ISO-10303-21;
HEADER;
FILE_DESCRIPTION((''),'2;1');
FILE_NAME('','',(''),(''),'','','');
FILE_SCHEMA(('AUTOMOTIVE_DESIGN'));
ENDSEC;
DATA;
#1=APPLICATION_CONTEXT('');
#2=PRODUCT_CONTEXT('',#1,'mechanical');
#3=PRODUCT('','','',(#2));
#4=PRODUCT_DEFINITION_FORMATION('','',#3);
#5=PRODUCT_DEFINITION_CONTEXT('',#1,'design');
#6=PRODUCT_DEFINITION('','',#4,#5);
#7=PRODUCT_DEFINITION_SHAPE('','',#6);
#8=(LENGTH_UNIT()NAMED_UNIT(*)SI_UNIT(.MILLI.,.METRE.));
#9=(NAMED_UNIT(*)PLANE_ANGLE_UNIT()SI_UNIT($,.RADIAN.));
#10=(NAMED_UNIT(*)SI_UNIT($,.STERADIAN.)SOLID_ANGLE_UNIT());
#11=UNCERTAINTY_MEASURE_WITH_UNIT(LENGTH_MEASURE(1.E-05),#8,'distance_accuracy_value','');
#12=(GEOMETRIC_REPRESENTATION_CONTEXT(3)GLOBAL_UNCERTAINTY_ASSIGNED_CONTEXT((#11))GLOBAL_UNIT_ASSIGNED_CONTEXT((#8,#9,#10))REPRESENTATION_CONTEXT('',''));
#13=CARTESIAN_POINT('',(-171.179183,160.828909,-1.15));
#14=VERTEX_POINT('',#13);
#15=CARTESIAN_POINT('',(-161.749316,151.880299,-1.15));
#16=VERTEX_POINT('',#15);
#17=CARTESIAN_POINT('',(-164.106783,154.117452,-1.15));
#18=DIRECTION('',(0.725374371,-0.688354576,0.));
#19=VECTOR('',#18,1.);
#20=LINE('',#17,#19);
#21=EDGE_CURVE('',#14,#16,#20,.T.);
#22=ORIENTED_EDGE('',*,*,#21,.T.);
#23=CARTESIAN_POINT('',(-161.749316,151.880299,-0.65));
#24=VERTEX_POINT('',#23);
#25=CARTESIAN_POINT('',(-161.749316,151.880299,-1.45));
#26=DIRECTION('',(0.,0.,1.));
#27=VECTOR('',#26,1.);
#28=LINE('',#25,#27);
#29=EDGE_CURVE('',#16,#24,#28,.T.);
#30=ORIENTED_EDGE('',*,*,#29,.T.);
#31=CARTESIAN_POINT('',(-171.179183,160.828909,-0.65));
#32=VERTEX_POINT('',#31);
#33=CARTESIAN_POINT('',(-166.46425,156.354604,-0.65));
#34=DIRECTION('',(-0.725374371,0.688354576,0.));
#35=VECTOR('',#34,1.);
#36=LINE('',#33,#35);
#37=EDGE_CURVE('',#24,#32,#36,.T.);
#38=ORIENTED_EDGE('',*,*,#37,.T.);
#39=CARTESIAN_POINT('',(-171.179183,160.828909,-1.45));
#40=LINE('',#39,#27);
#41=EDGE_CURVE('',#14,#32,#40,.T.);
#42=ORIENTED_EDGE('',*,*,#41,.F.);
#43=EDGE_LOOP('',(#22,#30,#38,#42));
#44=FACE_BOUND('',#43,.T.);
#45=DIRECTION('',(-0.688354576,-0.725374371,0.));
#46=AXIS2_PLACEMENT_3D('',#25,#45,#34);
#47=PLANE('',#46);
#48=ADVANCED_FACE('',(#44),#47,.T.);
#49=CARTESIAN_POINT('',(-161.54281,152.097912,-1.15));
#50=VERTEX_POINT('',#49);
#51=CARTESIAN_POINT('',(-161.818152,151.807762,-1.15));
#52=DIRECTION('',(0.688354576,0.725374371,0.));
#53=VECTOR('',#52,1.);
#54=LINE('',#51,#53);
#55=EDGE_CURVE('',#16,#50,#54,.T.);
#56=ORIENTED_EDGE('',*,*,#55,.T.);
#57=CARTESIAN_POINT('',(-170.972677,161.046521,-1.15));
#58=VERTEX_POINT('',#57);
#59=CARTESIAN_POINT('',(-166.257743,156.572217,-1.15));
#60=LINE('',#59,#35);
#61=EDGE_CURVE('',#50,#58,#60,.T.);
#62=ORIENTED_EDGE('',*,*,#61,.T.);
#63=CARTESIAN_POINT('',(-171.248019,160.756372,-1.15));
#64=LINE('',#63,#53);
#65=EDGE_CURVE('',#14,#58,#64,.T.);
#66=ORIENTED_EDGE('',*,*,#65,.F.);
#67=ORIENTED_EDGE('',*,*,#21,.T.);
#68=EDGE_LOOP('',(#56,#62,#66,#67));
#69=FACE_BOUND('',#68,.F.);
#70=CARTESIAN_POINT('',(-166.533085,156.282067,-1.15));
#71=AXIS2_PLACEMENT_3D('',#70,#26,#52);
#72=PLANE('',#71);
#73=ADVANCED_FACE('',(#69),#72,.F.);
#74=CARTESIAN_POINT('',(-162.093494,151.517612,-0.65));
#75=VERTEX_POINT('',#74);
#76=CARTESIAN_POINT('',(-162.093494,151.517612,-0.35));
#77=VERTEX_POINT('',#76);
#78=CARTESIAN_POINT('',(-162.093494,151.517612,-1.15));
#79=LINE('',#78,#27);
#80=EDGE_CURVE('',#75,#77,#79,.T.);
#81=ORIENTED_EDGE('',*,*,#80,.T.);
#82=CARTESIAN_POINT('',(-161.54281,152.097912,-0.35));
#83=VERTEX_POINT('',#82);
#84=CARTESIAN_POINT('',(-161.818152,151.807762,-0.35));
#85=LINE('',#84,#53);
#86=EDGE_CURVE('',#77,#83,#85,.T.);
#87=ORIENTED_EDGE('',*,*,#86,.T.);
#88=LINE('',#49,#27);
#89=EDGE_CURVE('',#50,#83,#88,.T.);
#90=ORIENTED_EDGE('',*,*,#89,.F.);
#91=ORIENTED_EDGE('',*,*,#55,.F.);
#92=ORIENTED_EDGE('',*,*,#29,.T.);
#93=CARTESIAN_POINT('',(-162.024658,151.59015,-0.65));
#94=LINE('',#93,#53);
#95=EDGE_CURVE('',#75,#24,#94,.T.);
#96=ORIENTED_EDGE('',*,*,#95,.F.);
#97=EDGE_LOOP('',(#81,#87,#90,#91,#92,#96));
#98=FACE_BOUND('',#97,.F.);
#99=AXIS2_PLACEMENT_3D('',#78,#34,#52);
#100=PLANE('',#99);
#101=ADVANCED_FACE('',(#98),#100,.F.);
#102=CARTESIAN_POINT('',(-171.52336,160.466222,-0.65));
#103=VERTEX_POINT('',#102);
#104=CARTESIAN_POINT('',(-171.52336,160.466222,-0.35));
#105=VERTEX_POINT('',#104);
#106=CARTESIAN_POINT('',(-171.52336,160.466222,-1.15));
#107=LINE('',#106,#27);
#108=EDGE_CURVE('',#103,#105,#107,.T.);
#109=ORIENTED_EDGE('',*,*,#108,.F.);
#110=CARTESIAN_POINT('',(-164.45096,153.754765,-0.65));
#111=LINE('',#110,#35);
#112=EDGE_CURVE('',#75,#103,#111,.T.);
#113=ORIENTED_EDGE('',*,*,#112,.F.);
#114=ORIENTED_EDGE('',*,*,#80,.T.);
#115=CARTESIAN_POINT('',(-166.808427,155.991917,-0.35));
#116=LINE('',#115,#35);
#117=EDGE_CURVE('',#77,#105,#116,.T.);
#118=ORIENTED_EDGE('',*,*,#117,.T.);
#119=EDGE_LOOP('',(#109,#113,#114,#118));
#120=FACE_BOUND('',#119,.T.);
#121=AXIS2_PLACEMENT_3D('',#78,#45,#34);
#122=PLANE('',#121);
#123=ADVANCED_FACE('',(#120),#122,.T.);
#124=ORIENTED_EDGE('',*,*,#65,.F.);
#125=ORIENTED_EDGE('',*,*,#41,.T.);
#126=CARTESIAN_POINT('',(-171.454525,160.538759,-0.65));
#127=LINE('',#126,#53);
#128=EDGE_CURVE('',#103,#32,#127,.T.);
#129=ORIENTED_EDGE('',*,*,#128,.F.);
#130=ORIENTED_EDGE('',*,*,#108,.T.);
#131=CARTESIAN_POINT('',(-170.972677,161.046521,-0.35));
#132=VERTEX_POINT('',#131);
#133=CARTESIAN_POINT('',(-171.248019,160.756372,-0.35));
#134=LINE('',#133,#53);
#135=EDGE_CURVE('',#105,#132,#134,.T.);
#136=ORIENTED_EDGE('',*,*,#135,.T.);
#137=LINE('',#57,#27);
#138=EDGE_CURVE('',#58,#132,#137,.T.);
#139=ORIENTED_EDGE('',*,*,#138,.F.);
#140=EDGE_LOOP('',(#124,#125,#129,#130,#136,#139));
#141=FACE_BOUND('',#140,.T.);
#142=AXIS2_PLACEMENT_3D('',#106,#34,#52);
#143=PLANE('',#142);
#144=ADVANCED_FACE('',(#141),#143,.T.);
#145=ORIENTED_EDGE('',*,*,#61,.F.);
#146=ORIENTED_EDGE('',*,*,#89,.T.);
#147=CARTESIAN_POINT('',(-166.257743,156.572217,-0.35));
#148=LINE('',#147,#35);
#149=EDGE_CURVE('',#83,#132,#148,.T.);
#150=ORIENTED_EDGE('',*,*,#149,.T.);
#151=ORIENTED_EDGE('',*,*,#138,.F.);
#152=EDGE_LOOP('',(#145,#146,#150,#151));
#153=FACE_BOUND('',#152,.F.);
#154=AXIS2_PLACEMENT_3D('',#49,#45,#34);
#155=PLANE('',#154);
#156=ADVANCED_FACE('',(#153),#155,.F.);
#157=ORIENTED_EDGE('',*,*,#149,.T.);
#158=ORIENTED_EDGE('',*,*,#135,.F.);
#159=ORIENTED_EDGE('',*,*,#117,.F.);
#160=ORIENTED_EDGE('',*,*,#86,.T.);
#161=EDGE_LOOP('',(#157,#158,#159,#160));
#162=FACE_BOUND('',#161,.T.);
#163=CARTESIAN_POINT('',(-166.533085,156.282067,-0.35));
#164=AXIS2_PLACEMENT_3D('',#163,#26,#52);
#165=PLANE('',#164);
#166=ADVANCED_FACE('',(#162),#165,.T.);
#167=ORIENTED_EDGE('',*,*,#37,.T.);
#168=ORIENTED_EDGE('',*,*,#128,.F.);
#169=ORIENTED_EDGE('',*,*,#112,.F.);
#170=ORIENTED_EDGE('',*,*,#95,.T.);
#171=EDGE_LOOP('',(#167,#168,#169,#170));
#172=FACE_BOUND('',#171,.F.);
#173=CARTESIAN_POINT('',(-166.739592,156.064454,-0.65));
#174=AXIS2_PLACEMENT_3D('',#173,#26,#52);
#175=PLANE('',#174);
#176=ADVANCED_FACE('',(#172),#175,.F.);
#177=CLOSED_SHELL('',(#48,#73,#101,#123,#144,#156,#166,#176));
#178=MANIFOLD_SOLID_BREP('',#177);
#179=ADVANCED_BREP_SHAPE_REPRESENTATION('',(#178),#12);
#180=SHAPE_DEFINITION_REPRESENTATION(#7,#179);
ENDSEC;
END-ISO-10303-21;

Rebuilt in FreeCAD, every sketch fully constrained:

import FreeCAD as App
import Part
import Sketcher

V = App.Vector

doc = App.newDocument("Part")
body = doc.addObject("PartDesign::Body", "Body")

sketch1 = doc.addObject("Sketcher::SketchObject", "Sketch")
body.addObject(sketch1)
sketch1.AttachmentSupport = (doc.XY_Plane, [""])
sketch1.MapMode = "FlatFace"
sketch1.addGeometry([
    Part.LineSegment(V(0, 13, 0), V(0, 0, 0)),
    Part.LineSegment(V(0, 0, 0), V(0.8, 0, 0)),
    Part.LineSegment(V(0.8, 0, 0), V(0.8, 13, 0)),
    Part.LineSegment(V(0.8, 13, 0), V(0, 13, 0)),
], False)
sketch1.addConstraint([
    Sketcher.Constraint("Coincident", 0, 2, 1, 1),
    Sketcher.Constraint("Coincident", 1, 2, 2, 1),
    Sketcher.Constraint("Coincident", 2, 2, 3, 1),
    Sketcher.Constraint("Coincident", 3, 2, 0, 1),
    Sketcher.Constraint("Vertical", 0),
    Sketcher.Constraint("Horizontal", 1),
    Sketcher.Constraint("Vertical", 2),
    Sketcher.Constraint("Horizontal", 3),
    Sketcher.Constraint("Coincident", 0, 2, -1, 1),
    Sketcher.Constraint("DistanceY", 0, 2, 0, 1, 13.0),
    Sketcher.Constraint("DistanceX", 1, 1, 1, 2, 0.8),
])
pad1 = doc.addObject("PartDesign::Pad", "Pad")
body.addObject(pad1)
pad1.Profile = sketch1
pad1.Length = 0.8
body2 = doc.addObject("PartDesign::Body", "Body001")

sketch2 = doc.addObject("Sketcher::SketchObject", "Sketch001")
body2.addObject(sketch2)
sketch2.AttachmentSupport = (doc.getObject("XY_Plane001"), [""])
sketch2.MapMode = "FlatFace"
sketch2.AttachmentOffset = App.Placement(V(0, 0, 0.3), App.Rotation())
sketch2.addGeometry([
    Part.LineSegment(V(0.3, 13, 0), V(0.3, 0, 0)),
    Part.LineSegment(V(0.3, 0, 0), V(1.1, 0, 0)),
    Part.LineSegment(V(1.1, 0, 0), V(1.1, 13, 0)),
    Part.LineSegment(V(1.1, 13, 0), V(0.3, 13, 0)),
], False)
sketch2.addConstraint([
    Sketcher.Constraint("Coincident", 0, 2, 1, 1),
    Sketcher.Constraint("Coincident", 1, 2, 2, 1),
    Sketcher.Constraint("Coincident", 2, 2, 3, 1),
    Sketcher.Constraint("Coincident", 3, 2, 0, 1),
    Sketcher.Constraint("Vertical", 0),
    Sketcher.Constraint("Horizontal", 1),
    Sketcher.Constraint("Vertical", 2),
    Sketcher.Constraint("Horizontal", 3),
    Sketcher.Constraint("PointOnObject", 0, 2, -1),
    Sketcher.Constraint("DistanceY", 0, 2, 0, 1, 13.0),
    Sketcher.Constraint("DistanceX", 1, 1, 1, 2, 0.8),
    Sketcher.Constraint("DistanceX", -1, 1, 0, 2, 0.3),
])
pad2 = doc.addObject("PartDesign::Pad", "Pad001")
body2.addObject(pad2)
pad2.Profile = sketch2
pad2.Length = 0.8
doc.recompute()

boolean = doc.addObject("PartDesign::Boolean", "Boolean")
body2.addObject(boolean)
boolean.Type = "Cut"
boolean.addObjects([body])
body3 = doc.addObject("PartDesign::Body", "Body002")
doc.recompute()

body2.Placement = App.Placement(V(-162.3, 151.3, -1.45), App.Rotation(V(0, 0, 1), 46.5))
boolean2 = doc.addObject("PartDesign::Boolean", "Boolean001")
body3.addObject(boolean2)
boolean2.Type = "Fuse"
boolean2.addObjects([body2])

doc.recompute()
